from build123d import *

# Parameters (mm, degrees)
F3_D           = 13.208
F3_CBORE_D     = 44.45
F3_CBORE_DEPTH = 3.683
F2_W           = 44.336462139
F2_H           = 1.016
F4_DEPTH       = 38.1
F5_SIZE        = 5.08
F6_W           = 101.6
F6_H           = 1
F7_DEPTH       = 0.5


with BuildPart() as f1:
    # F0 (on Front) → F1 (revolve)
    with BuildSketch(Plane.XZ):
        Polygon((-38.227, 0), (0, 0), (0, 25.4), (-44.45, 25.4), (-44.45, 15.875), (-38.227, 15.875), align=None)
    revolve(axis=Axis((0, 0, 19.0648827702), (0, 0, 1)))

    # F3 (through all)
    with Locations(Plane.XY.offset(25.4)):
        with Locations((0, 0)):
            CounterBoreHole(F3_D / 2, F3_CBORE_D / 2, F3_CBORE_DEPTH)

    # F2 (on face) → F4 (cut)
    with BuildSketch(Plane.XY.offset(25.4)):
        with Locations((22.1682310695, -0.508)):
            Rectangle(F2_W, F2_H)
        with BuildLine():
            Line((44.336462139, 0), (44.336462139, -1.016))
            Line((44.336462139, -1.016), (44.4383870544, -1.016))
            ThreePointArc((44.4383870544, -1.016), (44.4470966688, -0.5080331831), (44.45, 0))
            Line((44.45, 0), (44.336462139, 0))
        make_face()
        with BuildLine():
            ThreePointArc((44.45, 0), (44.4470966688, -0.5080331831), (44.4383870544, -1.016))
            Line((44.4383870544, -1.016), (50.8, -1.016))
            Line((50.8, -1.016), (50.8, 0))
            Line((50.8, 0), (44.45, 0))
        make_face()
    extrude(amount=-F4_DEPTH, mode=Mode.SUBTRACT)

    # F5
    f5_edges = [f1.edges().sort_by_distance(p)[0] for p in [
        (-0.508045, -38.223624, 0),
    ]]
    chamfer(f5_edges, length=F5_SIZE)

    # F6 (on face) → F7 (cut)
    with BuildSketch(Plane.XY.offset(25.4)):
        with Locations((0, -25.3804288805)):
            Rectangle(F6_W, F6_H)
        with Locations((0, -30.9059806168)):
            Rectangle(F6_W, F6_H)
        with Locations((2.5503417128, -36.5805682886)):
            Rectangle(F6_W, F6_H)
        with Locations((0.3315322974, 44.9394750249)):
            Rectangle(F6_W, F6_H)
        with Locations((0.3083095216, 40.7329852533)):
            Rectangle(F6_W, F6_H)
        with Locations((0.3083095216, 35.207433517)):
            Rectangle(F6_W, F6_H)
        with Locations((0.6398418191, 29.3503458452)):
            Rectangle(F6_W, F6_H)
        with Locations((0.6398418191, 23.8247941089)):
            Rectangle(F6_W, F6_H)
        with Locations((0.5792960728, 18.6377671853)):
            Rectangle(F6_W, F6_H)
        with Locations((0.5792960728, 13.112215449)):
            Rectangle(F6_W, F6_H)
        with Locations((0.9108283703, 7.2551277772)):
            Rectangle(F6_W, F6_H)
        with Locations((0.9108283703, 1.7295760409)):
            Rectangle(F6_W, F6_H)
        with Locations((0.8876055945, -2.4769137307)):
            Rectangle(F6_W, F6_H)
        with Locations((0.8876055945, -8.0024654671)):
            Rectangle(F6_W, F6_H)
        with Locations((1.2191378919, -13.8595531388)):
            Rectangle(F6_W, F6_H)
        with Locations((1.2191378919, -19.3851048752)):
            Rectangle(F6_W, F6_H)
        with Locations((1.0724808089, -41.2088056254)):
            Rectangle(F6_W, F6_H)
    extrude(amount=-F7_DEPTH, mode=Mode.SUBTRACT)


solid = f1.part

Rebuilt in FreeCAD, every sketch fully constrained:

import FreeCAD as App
import Part
import Sketcher
from FreeCAD import Vector
Q = App.Units.Quantity


def edges_at(feature, points):
    """Names of the edges that pass closest to the given points."""
    edges = feature.Shape.Edges
    near = lambda p: min(range(len(edges)), key=lambda i: edges[i].distToShape(Part.Vertex(*p))[0])
    return sorted({f"Edge{near(p) + 1}" for p in points})


def add_polygon(sketch, points):
    """Adds a closed chain of lines whose ends are joined by coincident constraints."""
    first, n = sketch.GeometryCount, len(points)
    for a, b in zip(points, points[1:] + points[:1]):
        sketch.addGeometry(Part.LineSegment(App.Vector(*a, 0), App.Vector(*b, 0)), False)
    for i in range(n):
        sketch.addConstraint(Sketcher.Constraint("Coincident", first + i, 2, first + (i + 1) % n, 1))

doc = App.newDocument("Part")
body = doc.addObject("PartDesign::Body", "Body")

# Sketch on XZ plane
sketch1 = body.newObject("Sketcher::SketchObject", "Sketch")
sketch1.AttachmentSupport = (doc.getObject("XZ_Plane"), [""])
sketch1.MapMode = "FlatFace"
add_polygon(sketch1, [(-38, 0), (0, 0), (0, 25), (-44, 25), (-44, 16), (-38, 16)])  # lines 0-5
sketch1.addConstraint([
    Sketcher.Constraint("Horizontal", 0),
    Sketcher.Constraint("Vertical", 1),
    Sketcher.Constraint("Horizontal", 2),
    Sketcher.Constraint("Vertical", 3),
    Sketcher.Constraint("Horizontal", 4),
    Sketcher.Constraint("Vertical", 5),
    Sketcher.Constraint("Coincident", 0, 2, -1, 1),
    Sketcher.Constraint("DistanceY", 1, 1, 1, 2, Q("1 in")),
    Sketcher.Constraint("DistanceX", 2, 2, 2, 1, Q("1.75 in")),
    Sketcher.Constraint("DistanceX", 0, 1, 0, 2, Q("1.505 in")),
    Sketcher.Constraint("DistanceY", 3, 2, 3, 1, Q("0.375 in")),
])
revolution = body.newObject("PartDesign::Revolution", "Revolution")
revolution.Profile = sketch1
revolution.ReferenceAxis = (sketch1, ["V_Axis"])
revolution.Angle = 360

# Sketch on XY plane
sketch2 = body.newObject("Sketcher::SketchObject", "Sketch001")
sketch2.AttachmentSupport = (doc.getObject("XY_Plane"), [""])
sketch2.MapMode = "FlatFace"
sketch2.AttachmentOffset = App.Placement(Vector(0, 0, 1 * 25.4), App.Rotation())
sketch2.addGeometry(Part.Circle(Vector(0, 0, 0), Vector(0, 0, 1), 7), False)
sketch2.addConstraint([
    Sketcher.Constraint("Coincident", 0, 3, -1, 1),
    Sketcher.Constraint("Diameter", 0, Q("0.52 in")),
])
doc.recompute()
hole = body.newObject("PartDesign::Hole", "Hole")
hole.Profile = sketch2
hole.ThreadType = "None"
hole.Diameter = Q("0.52 in")
hole.DepthType = "ThroughAll"
hole.HoleCutType = "Counterbore"
hole.HoleCutDiameter = Q("1.75 in")
hole.HoleCutDepth = Q("0.145 in")

# Sketch on XY plane
sketch3 = body.newObject("Sketcher::SketchObject", "Sketch002")
sketch3.AttachmentSupport = (doc.getObject("XY_Plane"), [""])
sketch3.MapMode = "FlatFace"
sketch3.AttachmentOffset = App.Placement(Vector(0, 0, 1 * 25.4), App.Rotation())
add_polygon(sketch3, [(0, 0), (0, -1), (50.8, -1), (50.8, 0)])  # lines 0-3
sketch3.addConstraint([
    Sketcher.Constraint("Vertical", 0),
    Sketcher.Constraint("Horizontal", 1),
    Sketcher.Constraint("Vertical", 2),
    Sketcher.Constraint("Horizontal", 3),
    Sketcher.Constraint("Coincident", 3, 2, -1, 1),
    Sketcher.Constraint("DistanceX", 1, 1, 1, 2, Q("2 in")),
    Sketcher.Constraint("DistanceY", 0, 2, 0, 1, Q("0.04 in")),
])
pocket1 = body.newObject("PartDesign::Pocket", "Pocket")
pocket1.Profile = sketch3
pocket1.Length = Q("1.5 in")
doc.recompute()

chamfer = body.newObject("PartDesign::Chamfer", "Chamfer")
chamfer.Base = (pocket1, edges_at(pocket1, [(-0.508, -38.224, 0)]))
chamfer.Size = Q("0.2 in")

# Sketch on XY plane
sketch4 = body.newObject("Sketcher::SketchObject", "Sketch003")
sketch4.AttachmentSupport = (doc.getObject("XY_Plane"), [""])
sketch4.MapMode = "FlatFace"
sketch4.AttachmentOffset = App.Placement(Vector(0, 0, 1 * 25.4), App.Rotation())
add_polygon(sketch4, [(-50.8, -24.9), (-50.8, -25.9), (50.8, -25.9), (50.8, -24.9)])  # lines 0-3
add_polygon(sketch4, [(-50.8, -30.4), (-50.8, -31.4), (50.8, -31.4), (50.8, -30.4)])  # lines 4-7
add_polygon(sketch4, [(-48.2, -36.1), (-48.2, -37.1), (53.4, -37.1), (53.4, -36.1)])  # lines 8-11
add_polygon(sketch4, [(-50.5, 45.4), (-50.5, 44.4), (51.1, 44.4), (51.1, 45.4)])  # lines 12-15
add_polygon(sketch4, [(-50.5, 41.2), (-50.5, 40.2), (51.1, 40.2), (51.1, 41.2)])  # lines 16-19
add_polygon(sketch4, [(-50.5, 35.7), (-50.5, 34.7), (51.1, 34.7), (51.1, 35.7)])  # lines 20-23
add_polygon(sketch4, [(-50.2, 29.9), (-50.2, 28.9), (51.4, 28.9), (51.4, 29.9)])  # lines 24-27
add_polygon(sketch4, [(-50.2, 24.3), (-50.2, 23.3), (51.4, 23.3), (51.4, 24.3)])  # lines 28-31
add_polygon(sketch4, [(-50.2, 19.1), (-50.2, 18.1), (51.4, 18.1), (51.4, 19.1)])  # lines 32-35
add_polygon(sketch4, [(-50.2, 13.6), (-50.2, 12.6), (51.4, 12.6), (51.4, 13.6)])  # lines 36-39
add_polygon(sketch4, [(-49.9, 7.8), (-49.9, 6.8), (51.7, 6.8), (51.7, 7.8)])  # lines 40-43
add_polygon(sketch4, [(-49.9, 2.2), (-49.9, 1.2), (51.7, 1.2), (51.7, 2.2)])  # lines 44-47
add_polygon(sketch4, [(-49.9, -2), (-49.9, -3), (51.7, -3), (51.7, -2)])  # lines 48-51
add_polygon(sketch4, [(-49.9, -7.5), (-49.9, -8.5), (51.7, -8.5), (51.7, -7.5)])  # lines 52-55
add_polygon(sketch4, [(-49.6, -13.4), (-49.6, -14.4), (52, -14.4), (52, -13.4)])  # lines 56-59
add_polygon(sketch4, [(-49.6, -18.9), (-49.6, -19.9), (52, -19.9), (52, -18.9)])  # lines 60-63
add_polygon(sketch4, [(-49.7, -40.7), (-49.7, -41.7), (51.9, -41.7), (51.9, -40.7)])  # lines 64-67
sketch4.addConstraint([
    Sketcher.Constraint("Vertical", 0),
    Sketcher.Constraint("Horizontal", 1),
    Sketcher.Constraint("Vertical", 2),
    Sketcher.Constraint("Horizontal", 3),
    Sketcher.Constraint("Vertical", 4),
    Sketcher.Constraint("Horizontal", 5),
    Sketcher.Constraint("Vertical", 6),
    Sketcher.Constraint("Horizontal", 7),
    Sketcher.Constraint("Vertical", 8),
    Sketcher.Constraint("Horizontal", 9),
    Sketcher.Constraint("Vertical", 10),
    Sketcher.Constraint("Horizontal", 11),
    Sketcher.Constraint("Vertical", 12),
    Sketcher.Constraint("Horizontal", 13),
    Sketcher.Constraint("Vertical", 14),
    Sketcher.Constraint("Horizontal", 15),
    Sketcher.Constraint("Vertical", 16),
    Sketcher.Constraint("Horizontal", 17),
    Sketcher.Constraint("Vertical", 18),
    Sketcher.Constraint("Horizontal", 19),
    Sketcher.Constraint("Vertical", 20),
    Sketcher.Constraint("Horizontal", 21),
    Sketcher.Constraint("Vertical", 22),
    Sketcher.Constraint("Horizontal", 23),
    Sketcher.Constraint("Vertical", 24),
    Sketcher.Constraint("Horizontal", 25),
    Sketcher.Constraint("Vertical", 26),
    Sketcher.Constraint("Horizontal", 27),
    Sketcher.Constraint("Vertical", 28),
    Sketcher.Constraint("Horizontal", 29),
    Sketcher.Constraint("Vertical", 30),
    Sketcher.Constraint("Horizontal", 31),
    Sketcher.Constraint("Vertical", 32),
    Sketcher.Constraint("Horizontal", 33),
    Sketcher.Constraint("Vertical", 34),
    Sketcher.Constraint("Horizontal", 35),
    Sketcher.Constraint("Vertical", 36),
    Sketcher.Constraint("Horizontal", 37),
    Sketcher.Constraint("Vertical", 38),
    Sketcher.Constraint("Horizontal", 39),
    Sketcher.Constraint("Vertical", 40),
    Sketcher.Constraint("Horizontal", 41),
    Sketcher.Constraint("Vertical", 42),
    Sketcher.Constraint("Horizontal", 43),
    Sketcher.Constraint("Vertical", 44),
    Sketcher.Constraint("Horizontal", 45),
    Sketcher.Constraint("Vertical", 46),
    Sketcher.Constraint("Horizontal", 47),
    Sketcher.Constraint("Vertical", 48),
    Sketcher.Constraint("Horizontal", 49),
    Sketcher.Constraint("Vertical", 50),
    Sketcher.Constraint("Horizontal", 51),
    Sketcher.Constraint("Vertical", 52),
    Sketcher.Constraint("Horizontal", 53),
    Sketcher.Constraint("Vertical", 54),
    Sketcher.Constraint("Horizontal", 55),
    Sketcher.Constraint("Vertical", 56),
    Sketcher.Constraint("Horizontal", 57),
    Sketcher.Constraint("Vertical", 58),
    Sketcher.Constraint("Horizontal", 59),
    Sketcher.Constraint("Vertical", 60),
    Sketcher.Constraint("Horizontal", 61),
    Sketcher.Constraint("Vertical", 62),
    Sketcher.Constraint("Horizontal", 63),
    Sketcher.Constraint("Vertical", 64),
    Sketcher.Constraint("Horizontal", 65),
    Sketcher.Constraint("Vertical", 66),
    Sketcher.Constraint("Horizontal", 67),
    Sketcher.Constraint("Vertical", 3, 2, 4, 2),
    Sketcher.Constraint("Vertical", 2, 2, 5, 2),
    Sketcher.Constraint("Vertical", 19, 2, 20, 2),
    Sketcher.Constraint("Vertical", 18, 2, 21, 2),
    Sketcher.Constraint("Vertical", 27, 2, 28, 2),
    Sketcher.Constraint("Vertical", 26, 2, 29, 2),
    Sketcher.Constraint("Vertical", 35, 2, 36, 2),
    Sketcher.Constraint("Vertical", 34, 2, 37, 2),
    Sketcher.Constraint("Vertical", 43, 2, 44, 2),
    Sketcher.Constraint("Vertical", 42, 2, 45, 2),
    Sketcher.Constraint("Vertical", 51, 2, 52, 2),
    Sketcher.Constraint("Vertical", 50, 2, 53, 2),
    Sketcher.Constraint("Vertical", 59, 2, 60, 2),
    Sketcher.Constraint("Vertical", 58, 2, 61, 2),
    Sketcher.Constraint("Equal", 7, 9),
    Sketcher.Constraint("Equal", 11, 13),
    Sketcher.Constraint("Equal", 15, 17),
    Sketcher.Constraint("Equal", 23, 25),
    Sketcher.Constraint("Equal", 31, 33),
    Sketcher.Constraint("Equal", 39, 41),
    Sketcher.Constraint("Equal", 47, 49),
    Sketcher.Constraint("Equal", 55, 57),
    Sketcher.Constraint("Equal", 63, 65),
    Sketcher.Constraint("Equal", 2, 4),
    Sketcher.Constraint("Equal", 6, 8),
    Sketcher.Constraint("Equal", 10, 12),
    Sketcher.Constraint("Equal", 14, 16),
    Sketcher.Constraint("Equal", 18, 20),
    Sketcher.Constraint("Equal", 22, 24),
    Sketcher.Constraint("Equal", 26, 28),
    Sketcher.Constraint("Equal", 30, 32),
    Sketcher.Constraint("Equal", 34, 36),
    Sketcher.Constraint("Equal", 38, 40),
    Sketcher.Constraint("Equal", 42, 44),
    Sketcher.Constraint("Equal", 46, 48),
    Sketcher.Constraint("Equal", 50, 52),
    Sketcher.Constraint("Equal", 54, 56),
    Sketcher.Constraint("Equal", 58, 60),
    Sketcher.Constraint("Equal", 62, 64),
    Sketcher.Constraint("DistanceX", 1, 1, 1, 2, Q("4 in")),
    Sketcher.Constraint("DistanceX", 0, 2, -1, 1, Q("2 in")),
    Sketcher.Constraint("DistanceY", 0, 2, 0, 1, 1.0),
    Sketcher.Constraint("DistanceY", 0, 2, -1, 1, 25.880429),
    Sketcher.Constraint("DistanceY", 4, 2, -1, 1, 31.405981),
    Sketcher.Constraint("DistanceX", 8, 2, -1, 1, 48.249658),
    Sketcher.Constraint("DistanceY", 8, 2, -1, 1, 37.080568),
    Sketcher.Constraint("DistanceX", 16, 2, -1, 1, 50.49169),
    Sketcher.Constraint("DistanceX", 24, 2, -1, 1, 50.160158),
    Sketcher.Constraint("DistanceX", 40, 2, -1, 1, 49.889172),
    Sketcher.Constraint("DistanceX", 64, 2, -1, 1, 49.727519),
    Sketcher.Constraint("DistanceX", 12, 2, -1, 1, 50.468468),
    Sketcher.Constraint("DistanceY", -1, 1, 12, 2, 44.439475),
    Sketcher.Constraint("DistanceY", -1, 1, 16, 2, 40.232985),
    Sketcher.Constraint("DistanceY", -1, 1, 20, 2, 34.707434),
    Sketcher.Constraint("DistanceY", -1, 1, 24, 2, 28.850346),
    Sketcher.Constraint("DistanceY", -1, 1, 28, 2, 23.324794),
    Sketcher.Constraint("DistanceX", 32, 2, -1, 1, 50.220704),
    Sketcher.Constraint("DistanceY", -1, 1, 32, 2, 18.137767),
    Sketcher.Constraint("DistanceY", -1, 1, 36, 2, 12.612215),
    Sketcher.Constraint("DistanceY", -1, 1, 40, 2, 6.755128),
    Sketcher.Constraint("DistanceY", -1, 1, 44, 2, 1.229576),
    Sketcher.Constraint("DistanceX", 48, 2, -1, 1, 49.912394),
    Sketcher.Constraint("DistanceY", 48, 2, -1, 1, 2.976914),
    Sketcher.Constraint("DistanceY", 52, 2, -1, 1, 8.502465),
    Sketcher.Constraint("DistanceX", 56, 2, -1, 1, 49.580862),
    Sketcher.Constraint("DistanceY", 56, 2, -1, 1, 14.359553),
    Sketcher.Constraint("DistanceY", 60, 2, -1, 1, 19.885105),
    Sketcher.Constraint("DistanceY", 64, 2, -1, 1, 41.708806),
])
pocket2 = body.newObject("PartDesign::Pocket", "Pocket001")
pocket2.Profile = sketch4
pocket2.Length = 0.5

doc.recompute()
